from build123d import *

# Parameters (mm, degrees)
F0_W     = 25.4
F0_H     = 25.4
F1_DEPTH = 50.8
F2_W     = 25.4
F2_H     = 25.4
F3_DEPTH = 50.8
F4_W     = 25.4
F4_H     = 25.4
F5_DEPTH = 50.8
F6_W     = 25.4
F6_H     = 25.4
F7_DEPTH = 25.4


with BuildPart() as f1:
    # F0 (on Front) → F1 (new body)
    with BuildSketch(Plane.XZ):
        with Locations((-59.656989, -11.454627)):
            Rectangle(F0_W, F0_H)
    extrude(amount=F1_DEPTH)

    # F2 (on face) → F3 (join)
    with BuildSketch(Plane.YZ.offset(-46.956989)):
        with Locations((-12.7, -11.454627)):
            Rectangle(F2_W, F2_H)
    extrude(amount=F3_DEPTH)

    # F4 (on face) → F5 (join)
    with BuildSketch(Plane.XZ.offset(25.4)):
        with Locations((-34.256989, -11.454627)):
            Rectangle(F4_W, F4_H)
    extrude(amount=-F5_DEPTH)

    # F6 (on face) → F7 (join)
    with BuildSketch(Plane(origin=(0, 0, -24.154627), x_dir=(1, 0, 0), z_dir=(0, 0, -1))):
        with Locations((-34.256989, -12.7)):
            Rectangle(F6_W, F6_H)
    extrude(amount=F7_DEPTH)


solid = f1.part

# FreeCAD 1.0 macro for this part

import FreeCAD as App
import Part
import Sketcher

V = App.Vector
Q = App.Units.Quantity


def add_polygon(sketch, points):
    """Adds a closed chain of lines whose ends are joined by coincident constraints."""
    first, n = sketch.GeometryCount, len(points)
    for a, b in zip(points, points[1:] + points[:1]):
        sketch.addGeometry(Part.LineSegment(App.Vector(*a, 0), App.Vector(*b, 0)), False)
    for i in range(n):
        sketch.addConstraint(Sketcher.Constraint("Coincident", first + i, 2, first + (i + 1) % n, 1))

doc = App.newDocument("Part")
params = doc.addObject("Spreadsheet::Sheet", "Params")
for row, (alias, value) in enumerate([
    ("sketch1_width", "1 in"),
    ("pad1_length", "2 in"),
    ("sketch2_width", "1 in"),
    ("pad2_length", "2 in"),
    ("sketch3_width", "1 in"),
    ("pad3_length", "2 in"),
    ("sketch4_width", "1 in"),
    ("pad4_length", "1 in"),
], start=1):
    params.set(f"A{row}", alias)
    params.set(f"B{row}", "=" + value)
    params.setAlias(f"B{row}", alias)

body = doc.addObject("PartDesign::Body", "Body")

# Sketch on XZ plane
sketch1 = body.newObject("Sketcher::SketchObject", "Sketch")
sketch1.AttachmentSupport = (doc.getObject("XZ_Plane"), [""])
sketch1.MapMode = "FlatFace"
add_polygon(sketch1, [(-72, 1), (-72, -24), (-47, -24), (-47, 1)])  # lines 0-3
sketch1.addConstraint([
    Sketcher.Constraint("Vertical", 0),
    Sketcher.Constraint("Horizontal", 1),
    Sketcher.Constraint("Vertical", 2),
    Sketcher.Constraint("Horizontal", 3),
    Sketcher.Constraint("Equal", 3, 0),
    Sketcher.Constraint("DistanceX", 1, 1, 1, 2, Q("1 in")),
    Sketcher.Constraint("DistanceX", 0, 2, -1, 1, 72.356989),
    Sketcher.Constraint("DistanceY", 0, 2, -1, 1, 24.154627),
])
sketch1.setExpression("Constraints[9]", "Params.sketch1_width")
pad1 = body.newObject("PartDesign::Pad", "Pad")
pad1.Profile = sketch1
pad1.setExpression("Length", "Params.pad1_length")

# Sketch on YZ plane
sketch2 = body.newObject("Sketcher::SketchObject", "Sketch001")
sketch2.AttachmentSupport = (doc.getObject("YZ_Plane"), [""])
sketch2.MapMode = "FlatFace"
sketch2.AttachmentOffset = App.Placement(V(0, 0, -46.956989), App.Rotation())
add_polygon(sketch2, [(-25, 1), (-25, -24), (0, -24), (0, 1)])  # lines 0-3
sketch2.addConstraint([
    Sketcher.Constraint("Vertical", 0),
    Sketcher.Constraint("Horizontal", 1),
    Sketcher.Constraint("Vertical", 2),
    Sketcher.Constraint("Horizontal", 3),
    Sketcher.Constraint("PointOnObject", 1, 2, -2),
    Sketcher.Constraint("Equal", 3, 0),
    Sketcher.Constraint("DistanceX", 1, 1, 1, 2, Q("1 in")),
    Sketcher.Constraint("DistanceY", 0, 2, -1, 1, 24.154627),
])
sketch2.setExpression("Constraints[10]", "Params.sketch2_width")
pad2 = body.newObject("PartDesign::Pad", "Pad001")
pad2.Profile = sketch2
pad2.setExpression("Length", "Params.pad2_length")

# Sketch on XZ plane
sketch3 = body.newObject("Sketcher::SketchObject", "Sketch002")
sketch3.AttachmentSupport = (doc.getObject("XZ_Plane"), [""])
sketch3.MapMode = "FlatFace"
sketch3.AttachmentOffset = App.Placement(V(0, 0, 1 * 25.4), App.Rotation())
add_polygon(sketch3, [(-47, 1), (-47, -24), (-22, -24), (-22, 1)])  # lines 0-3
sketch3.addConstraint([
    Sketcher.Constraint("Vertical", 0),
    Sketcher.Constraint("Horizontal", 1),
    Sketcher.Constraint("Vertical", 2),
    Sketcher.Constraint("Horizontal", 3),
    Sketcher.Constraint("Equal", 3, 0),
    Sketcher.Constraint("DistanceX", 1, 1, 1, 2, Q("1 in")),
    Sketcher.Constraint("DistanceX", 0, 2, -1, 1, 46.956989),
    Sketcher.Constraint("DistanceY", 0, 2, -1, 1, 24.154627),
])
sketch3.setExpression("Constraints[9]", "Params.sketch3_width")
pad3 = body.newObject("PartDesign::Pad", "Pad002")
pad3.Profile = sketch3
pad3.setExpression("Length", "Params.pad3_length")
pad3.Reversed = True

# Sketch on XY plane
sketch4 = body.newObject("Sketcher::SketchObject", "Sketch003")
sketch4.AttachmentSupport = (doc.getObject("XY_Plane"), [""])
sketch4.MapMode = "FlatFace"
sketch4.AttachmentOffset = App.Placement(V(0, 0, -24.154627), App.Rotation())
add_polygon(sketch4, [(-47, 0), (-47, 25), (-22, 25), (-22, 0)])  # lines 0-3
sketch4.addConstraint([
    Sketcher.Constraint("Vertical", 0),
    Sketcher.Constraint("Horizontal", 1),
    Sketcher.Constraint("Vertical", 2),
    Sketcher.Constraint("Horizontal", 3),
    Sketcher.Constraint("PointOnObject", 2, 2, -1),
    Sketcher.Constraint("Equal", 3, 0),
    Sketcher.Constraint("DistanceX", 1, 1, 1, 2, Q("1 in")),
    Sketcher.Constraint("DistanceX", 0, 2, -1, 1, 46.956989),
])
sketch4.setExpression("Constraints[10]", "Params.sketch4_width")
pad4 = body.newObject("PartDesign::Pad", "Pad003")
pad4.Profile = sketch4
pad4.setExpression("Length", "Params.pad4_length")
pad4.Reversed = True

doc.recompute()
